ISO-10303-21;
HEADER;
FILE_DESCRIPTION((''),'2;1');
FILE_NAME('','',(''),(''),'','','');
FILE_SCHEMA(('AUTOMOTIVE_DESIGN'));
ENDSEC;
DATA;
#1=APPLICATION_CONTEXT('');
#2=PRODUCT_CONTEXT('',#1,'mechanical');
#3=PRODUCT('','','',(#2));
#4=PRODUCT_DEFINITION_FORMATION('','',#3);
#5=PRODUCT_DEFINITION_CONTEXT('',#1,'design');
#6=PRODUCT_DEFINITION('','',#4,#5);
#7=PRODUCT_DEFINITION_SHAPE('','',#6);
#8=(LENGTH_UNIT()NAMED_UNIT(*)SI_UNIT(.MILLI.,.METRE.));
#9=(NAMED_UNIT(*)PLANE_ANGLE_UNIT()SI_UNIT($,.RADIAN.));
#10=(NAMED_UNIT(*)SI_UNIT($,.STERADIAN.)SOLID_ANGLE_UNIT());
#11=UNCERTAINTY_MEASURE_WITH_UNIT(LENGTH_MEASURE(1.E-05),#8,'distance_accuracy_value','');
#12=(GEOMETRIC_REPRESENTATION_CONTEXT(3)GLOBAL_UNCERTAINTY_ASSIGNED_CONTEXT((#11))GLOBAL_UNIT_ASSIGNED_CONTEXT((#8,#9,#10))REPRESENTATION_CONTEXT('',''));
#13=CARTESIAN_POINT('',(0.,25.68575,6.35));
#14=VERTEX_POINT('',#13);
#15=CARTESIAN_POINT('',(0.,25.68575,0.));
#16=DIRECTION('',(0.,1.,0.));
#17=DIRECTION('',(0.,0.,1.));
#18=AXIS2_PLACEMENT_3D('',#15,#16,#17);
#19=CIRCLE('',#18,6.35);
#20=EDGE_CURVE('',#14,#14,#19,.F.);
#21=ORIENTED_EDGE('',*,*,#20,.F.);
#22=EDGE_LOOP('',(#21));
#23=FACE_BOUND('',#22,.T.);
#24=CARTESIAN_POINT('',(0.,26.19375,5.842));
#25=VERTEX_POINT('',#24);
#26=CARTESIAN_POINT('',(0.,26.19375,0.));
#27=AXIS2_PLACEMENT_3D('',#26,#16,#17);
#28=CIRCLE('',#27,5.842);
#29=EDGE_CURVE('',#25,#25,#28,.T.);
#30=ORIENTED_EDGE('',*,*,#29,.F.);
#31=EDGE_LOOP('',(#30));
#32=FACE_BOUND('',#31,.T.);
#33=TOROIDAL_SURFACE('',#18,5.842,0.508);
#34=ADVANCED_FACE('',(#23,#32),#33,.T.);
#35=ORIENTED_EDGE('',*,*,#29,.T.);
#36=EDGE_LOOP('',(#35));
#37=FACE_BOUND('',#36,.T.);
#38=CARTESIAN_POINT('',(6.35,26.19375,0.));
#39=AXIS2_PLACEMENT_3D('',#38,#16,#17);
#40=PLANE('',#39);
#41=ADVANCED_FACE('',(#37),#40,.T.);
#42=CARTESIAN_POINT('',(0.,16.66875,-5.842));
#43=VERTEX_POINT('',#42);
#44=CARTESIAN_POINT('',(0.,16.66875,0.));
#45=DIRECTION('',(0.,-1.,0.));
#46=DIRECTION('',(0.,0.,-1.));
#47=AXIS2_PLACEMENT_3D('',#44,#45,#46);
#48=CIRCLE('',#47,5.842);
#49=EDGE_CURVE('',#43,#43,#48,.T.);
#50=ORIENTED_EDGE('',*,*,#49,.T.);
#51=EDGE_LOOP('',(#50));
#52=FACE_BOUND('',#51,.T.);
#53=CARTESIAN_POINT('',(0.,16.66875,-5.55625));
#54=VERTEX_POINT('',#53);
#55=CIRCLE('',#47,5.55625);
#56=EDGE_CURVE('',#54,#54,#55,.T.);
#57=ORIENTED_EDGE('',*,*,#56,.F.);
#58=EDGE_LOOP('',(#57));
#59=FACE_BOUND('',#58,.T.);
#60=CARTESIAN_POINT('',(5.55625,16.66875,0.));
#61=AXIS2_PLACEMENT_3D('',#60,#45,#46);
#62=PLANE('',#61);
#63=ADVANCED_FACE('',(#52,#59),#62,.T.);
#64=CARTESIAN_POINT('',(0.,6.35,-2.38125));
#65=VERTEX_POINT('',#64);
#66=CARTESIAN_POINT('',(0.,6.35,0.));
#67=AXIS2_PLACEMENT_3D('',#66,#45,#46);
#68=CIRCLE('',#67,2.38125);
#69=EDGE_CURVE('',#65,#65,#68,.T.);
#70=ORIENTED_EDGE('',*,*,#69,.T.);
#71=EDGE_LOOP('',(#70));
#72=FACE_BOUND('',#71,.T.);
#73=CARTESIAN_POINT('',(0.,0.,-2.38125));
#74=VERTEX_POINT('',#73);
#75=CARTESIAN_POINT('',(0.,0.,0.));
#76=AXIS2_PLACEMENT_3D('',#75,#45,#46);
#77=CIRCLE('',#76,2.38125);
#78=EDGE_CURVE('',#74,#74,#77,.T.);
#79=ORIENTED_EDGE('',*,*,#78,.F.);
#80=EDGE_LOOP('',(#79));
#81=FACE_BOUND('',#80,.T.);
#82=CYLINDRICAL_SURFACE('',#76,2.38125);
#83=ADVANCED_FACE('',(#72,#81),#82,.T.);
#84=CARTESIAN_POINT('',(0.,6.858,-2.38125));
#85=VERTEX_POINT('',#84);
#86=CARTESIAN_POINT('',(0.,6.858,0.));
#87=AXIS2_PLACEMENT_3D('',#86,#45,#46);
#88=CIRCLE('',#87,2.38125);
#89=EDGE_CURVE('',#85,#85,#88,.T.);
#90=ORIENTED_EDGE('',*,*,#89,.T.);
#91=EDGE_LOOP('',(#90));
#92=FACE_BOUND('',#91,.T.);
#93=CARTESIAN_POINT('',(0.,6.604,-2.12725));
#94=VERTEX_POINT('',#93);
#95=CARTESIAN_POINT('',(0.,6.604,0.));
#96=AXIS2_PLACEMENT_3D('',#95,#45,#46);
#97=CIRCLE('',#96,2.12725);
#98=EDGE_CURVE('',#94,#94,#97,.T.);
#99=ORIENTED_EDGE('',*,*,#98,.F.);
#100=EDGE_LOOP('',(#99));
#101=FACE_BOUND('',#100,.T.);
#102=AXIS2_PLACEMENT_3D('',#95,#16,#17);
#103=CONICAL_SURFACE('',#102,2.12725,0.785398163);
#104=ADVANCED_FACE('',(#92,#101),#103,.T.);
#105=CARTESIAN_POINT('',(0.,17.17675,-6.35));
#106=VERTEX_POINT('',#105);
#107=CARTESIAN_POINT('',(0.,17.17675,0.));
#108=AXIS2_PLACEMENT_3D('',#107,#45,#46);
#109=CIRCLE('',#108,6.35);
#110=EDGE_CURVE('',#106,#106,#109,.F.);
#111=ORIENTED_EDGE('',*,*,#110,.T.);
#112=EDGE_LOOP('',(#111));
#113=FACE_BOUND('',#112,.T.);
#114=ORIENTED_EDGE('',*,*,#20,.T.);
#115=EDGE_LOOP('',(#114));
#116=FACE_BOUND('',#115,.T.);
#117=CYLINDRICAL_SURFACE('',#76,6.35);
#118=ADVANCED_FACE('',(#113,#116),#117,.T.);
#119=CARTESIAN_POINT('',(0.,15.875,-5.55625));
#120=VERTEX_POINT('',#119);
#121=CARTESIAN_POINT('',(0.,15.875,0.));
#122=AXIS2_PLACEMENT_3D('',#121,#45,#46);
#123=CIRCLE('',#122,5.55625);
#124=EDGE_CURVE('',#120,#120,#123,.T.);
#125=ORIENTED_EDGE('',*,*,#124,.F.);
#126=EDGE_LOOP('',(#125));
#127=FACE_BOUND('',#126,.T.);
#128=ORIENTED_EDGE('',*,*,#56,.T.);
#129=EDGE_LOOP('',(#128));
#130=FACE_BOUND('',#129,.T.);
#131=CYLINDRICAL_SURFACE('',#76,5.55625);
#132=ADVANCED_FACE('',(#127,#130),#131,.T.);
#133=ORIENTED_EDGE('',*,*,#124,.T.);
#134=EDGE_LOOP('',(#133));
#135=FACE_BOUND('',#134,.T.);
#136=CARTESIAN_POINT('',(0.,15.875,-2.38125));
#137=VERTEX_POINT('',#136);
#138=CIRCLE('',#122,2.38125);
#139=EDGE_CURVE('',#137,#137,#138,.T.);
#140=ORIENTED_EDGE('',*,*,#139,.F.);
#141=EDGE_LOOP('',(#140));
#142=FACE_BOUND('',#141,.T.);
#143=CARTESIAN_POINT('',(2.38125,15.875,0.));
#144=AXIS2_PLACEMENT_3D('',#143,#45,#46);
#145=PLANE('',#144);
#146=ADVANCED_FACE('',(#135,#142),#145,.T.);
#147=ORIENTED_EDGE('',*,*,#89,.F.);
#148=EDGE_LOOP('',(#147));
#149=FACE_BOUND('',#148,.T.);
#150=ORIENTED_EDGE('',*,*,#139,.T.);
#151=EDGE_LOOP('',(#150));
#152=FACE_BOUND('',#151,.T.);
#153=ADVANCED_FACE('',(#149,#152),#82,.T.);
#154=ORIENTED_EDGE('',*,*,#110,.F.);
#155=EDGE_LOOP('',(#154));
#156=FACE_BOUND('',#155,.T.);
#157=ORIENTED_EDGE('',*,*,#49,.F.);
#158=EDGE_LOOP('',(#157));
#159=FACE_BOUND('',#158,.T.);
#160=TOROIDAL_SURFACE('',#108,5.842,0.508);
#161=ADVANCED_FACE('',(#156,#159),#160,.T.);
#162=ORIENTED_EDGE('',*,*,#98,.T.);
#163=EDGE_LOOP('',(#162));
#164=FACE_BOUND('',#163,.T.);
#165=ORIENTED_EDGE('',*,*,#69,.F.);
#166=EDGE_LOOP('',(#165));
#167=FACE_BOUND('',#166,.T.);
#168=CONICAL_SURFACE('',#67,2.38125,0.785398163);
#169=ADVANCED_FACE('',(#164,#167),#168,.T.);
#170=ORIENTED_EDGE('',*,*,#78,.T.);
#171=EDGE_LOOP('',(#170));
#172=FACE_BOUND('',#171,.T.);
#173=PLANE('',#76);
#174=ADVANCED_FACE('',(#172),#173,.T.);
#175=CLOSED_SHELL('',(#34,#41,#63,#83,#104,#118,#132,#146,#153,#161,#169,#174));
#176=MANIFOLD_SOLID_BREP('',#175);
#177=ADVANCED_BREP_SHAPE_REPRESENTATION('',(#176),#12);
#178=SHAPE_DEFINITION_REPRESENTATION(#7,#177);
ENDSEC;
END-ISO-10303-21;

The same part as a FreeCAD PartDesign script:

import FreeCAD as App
import Part
import Sketcher
from FreeCAD import Vector
Q = App.Units.Quantity


def edges_at(feature, points):
    """Names of the edges that pass closest to the given points."""
    edges = feature.Shape.Edges
    near = lambda p: min(range(len(edges)), key=lambda i: edges[i].distToShape(Part.Vertex(*p))[0])
    return sorted({f"Edge{near(p) + 1}" for p in points})

doc = App.newDocument("Part")
params = doc.addObject("Spreadsheet::Sheet", "Params")
for row, (alias, value) in enumerate([
    ("sketch1_width", "0.25 in"),
    ("sketch1_width2", "0.09375 in"),
    ("sketch1_width3", "0.125 in"),
    ("sketch1_height", "0.355 in"),
    ("sketch1_height2", "0.375 in"),
    ("revolution_angle", "360 deg"),
    ("fillet_radius", "0.02 in"),
], start=1):
    params.set(f"A{row}", alias)
    params.set(f"B{row}", "=" + value)
    params.setAlias(f"B{row}", alias)

body = doc.addObject("PartDesign::Body", "Body")

# Sketch on XY plane
sketch1 = doc.addObject("Sketcher::SketchObject", "Sketch")
body.addObject(sketch1)
sketch1.AttachmentSupport = (doc.XY_Plane, [""])
sketch1.MapMode = "FlatFace"
sketch1.addGeometry([
    Part.LineSegment(Vector(0, 0, 0), Vector(2.38125, 0, 0)),  # 0
    Part.LineSegment(Vector(2.38125, 0, 0), Vector(2.38125, 6.35, 0)),  # 1
    Part.LineSegment(Vector(2.38125, 6.35, 0), Vector(2.12725, 6.604, 0)),  # 2
    Part.LineSegment(Vector(2.12725, 6.604, 0), Vector(2.38125, 6.858, 0)),  # 3
    Part.LineSegment(Vector(2.38125, 6.858, 0), Vector(2.38125, 15.875, 0)),  # 4
    Part.LineSegment(Vector(2.38125, 15.875, 0), Vector(5.55625, 15.875, 0)),  # 5
    Part.LineSegment(Vector(5.55625, 15.875, 0), Vector(5.55625, 16.66875, 0)),  # 6
    Part.LineSegment(Vector(5.55625, 16.66875, 0), Vector(6.35, 16.66875, 0)),  # 7
    Part.LineSegment(Vector(6.35, 16.66875, 0), Vector(6.35, 26.19375, 0)),  # 8
    Part.LineSegment(Vector(6.35, 26.19375, 0), Vector(0, 26.19375, 0)),  # 9
    Part.LineSegment(Vector(0, 26.19375, 0), Vector(0, 0, 0)),  # 10
], False)
sketch1.addConstraint([
    Sketcher.Constraint("Coincident", 0, 2, 1, 1),
    Sketcher.Constraint("Coincident", 1, 2, 2, 1),
    Sketcher.Constraint("Coincident", 2, 2, 3, 1),
    Sketcher.Constraint("Coincident", 3, 2, 4, 1),
    Sketcher.Constraint("Coincident", 4, 2, 5, 1),
    Sketcher.Constraint("Coincident", 5, 2, 6, 1),
    Sketcher.Constraint("Coincident", 6, 2, 7, 1),
    Sketcher.Constraint("Coincident", 7, 2, 8, 1),
    Sketcher.Constraint("Coincident", 8, 2, 9, 1),
    Sketcher.Constraint("Coincident", 9, 2, 10, 1),
    Sketcher.Constraint("Coincident", 10, 2, 0, 1),
    Sketcher.Constraint("Horizontal", 0),
    Sketcher.Constraint("Vertical", 1),
    Sketcher.Constraint("Vertical", 4),
    Sketcher.Constraint("Horizontal", 5),
    Sketcher.Constraint("Vertical", 6),
    Sketcher.Constraint("Horizontal", 7),
    Sketcher.Constraint("Vertical", 8),
    Sketcher.Constraint("Horizontal", 9),
    Sketcher.Constraint("Vertical", 10),
    Sketcher.Constraint("Coincident", 10, 2, -1, 1),
    Sketcher.Constraint("Perpendicular", 2, 3),
    Sketcher.Constraint("Vertical", 1, 2, 3, 2),
    Sketcher.Constraint("Equal", 9, 1),
    Sketcher.Constraint("Equal", 7, 6),
    Sketcher.Constraint("Equal", 2, 3),
    Sketcher.Constraint("DistanceX", 9, 2, 9, 1, Q("0.25 in")),
    Sketcher.Constraint("DistanceX", 0, 1, 0, 2, Q("0.09375 in")),
    Sketcher.Constraint("DistanceX", 5, 1, 5, 2, Q("0.125 in")),
    Sketcher.Constraint("DistanceY", 4, 1, 4, 2, Q("0.355 in")),
    Sketcher.Constraint("DistanceY", 8, 1, 8, 2, Q("0.375 in")),
    Sketcher.Constraint("DistanceY", 10, 2, 10, 1, Q("1.03125 in")),
])
sketch1.setExpression("Constraints[26]", "Params.sketch1_width")
sketch1.setExpression("Constraints[27]", "Params.sketch1_width2")
sketch1.setExpression("Constraints[28]", "Params.sketch1_width3")
sketch1.setExpression("Constraints[29]", "Params.sketch1_height")
sketch1.setExpression("Constraints[30]", "Params.sketch1_height2")
revolution = doc.addObject("PartDesign::Revolution", "Revolution")
body.addObject(revolution)
revolution.Profile = sketch1
revolution.ReferenceAxis = (sketch1, ["V_Axis"])
revolution.setExpression("Angle", "Params.revolution_angle")
doc.recompute()

fillet = doc.addObject("PartDesign::Fillet", "Fillet")
body.addObject(fillet)
fillet.Base = (revolution, edges_at(revolution, [(0, 26.194, 6.35), (0, 16.669, 6.35)]))
fillet.setExpression("Radius", "Params.fillet_radius")

doc.recompute()
